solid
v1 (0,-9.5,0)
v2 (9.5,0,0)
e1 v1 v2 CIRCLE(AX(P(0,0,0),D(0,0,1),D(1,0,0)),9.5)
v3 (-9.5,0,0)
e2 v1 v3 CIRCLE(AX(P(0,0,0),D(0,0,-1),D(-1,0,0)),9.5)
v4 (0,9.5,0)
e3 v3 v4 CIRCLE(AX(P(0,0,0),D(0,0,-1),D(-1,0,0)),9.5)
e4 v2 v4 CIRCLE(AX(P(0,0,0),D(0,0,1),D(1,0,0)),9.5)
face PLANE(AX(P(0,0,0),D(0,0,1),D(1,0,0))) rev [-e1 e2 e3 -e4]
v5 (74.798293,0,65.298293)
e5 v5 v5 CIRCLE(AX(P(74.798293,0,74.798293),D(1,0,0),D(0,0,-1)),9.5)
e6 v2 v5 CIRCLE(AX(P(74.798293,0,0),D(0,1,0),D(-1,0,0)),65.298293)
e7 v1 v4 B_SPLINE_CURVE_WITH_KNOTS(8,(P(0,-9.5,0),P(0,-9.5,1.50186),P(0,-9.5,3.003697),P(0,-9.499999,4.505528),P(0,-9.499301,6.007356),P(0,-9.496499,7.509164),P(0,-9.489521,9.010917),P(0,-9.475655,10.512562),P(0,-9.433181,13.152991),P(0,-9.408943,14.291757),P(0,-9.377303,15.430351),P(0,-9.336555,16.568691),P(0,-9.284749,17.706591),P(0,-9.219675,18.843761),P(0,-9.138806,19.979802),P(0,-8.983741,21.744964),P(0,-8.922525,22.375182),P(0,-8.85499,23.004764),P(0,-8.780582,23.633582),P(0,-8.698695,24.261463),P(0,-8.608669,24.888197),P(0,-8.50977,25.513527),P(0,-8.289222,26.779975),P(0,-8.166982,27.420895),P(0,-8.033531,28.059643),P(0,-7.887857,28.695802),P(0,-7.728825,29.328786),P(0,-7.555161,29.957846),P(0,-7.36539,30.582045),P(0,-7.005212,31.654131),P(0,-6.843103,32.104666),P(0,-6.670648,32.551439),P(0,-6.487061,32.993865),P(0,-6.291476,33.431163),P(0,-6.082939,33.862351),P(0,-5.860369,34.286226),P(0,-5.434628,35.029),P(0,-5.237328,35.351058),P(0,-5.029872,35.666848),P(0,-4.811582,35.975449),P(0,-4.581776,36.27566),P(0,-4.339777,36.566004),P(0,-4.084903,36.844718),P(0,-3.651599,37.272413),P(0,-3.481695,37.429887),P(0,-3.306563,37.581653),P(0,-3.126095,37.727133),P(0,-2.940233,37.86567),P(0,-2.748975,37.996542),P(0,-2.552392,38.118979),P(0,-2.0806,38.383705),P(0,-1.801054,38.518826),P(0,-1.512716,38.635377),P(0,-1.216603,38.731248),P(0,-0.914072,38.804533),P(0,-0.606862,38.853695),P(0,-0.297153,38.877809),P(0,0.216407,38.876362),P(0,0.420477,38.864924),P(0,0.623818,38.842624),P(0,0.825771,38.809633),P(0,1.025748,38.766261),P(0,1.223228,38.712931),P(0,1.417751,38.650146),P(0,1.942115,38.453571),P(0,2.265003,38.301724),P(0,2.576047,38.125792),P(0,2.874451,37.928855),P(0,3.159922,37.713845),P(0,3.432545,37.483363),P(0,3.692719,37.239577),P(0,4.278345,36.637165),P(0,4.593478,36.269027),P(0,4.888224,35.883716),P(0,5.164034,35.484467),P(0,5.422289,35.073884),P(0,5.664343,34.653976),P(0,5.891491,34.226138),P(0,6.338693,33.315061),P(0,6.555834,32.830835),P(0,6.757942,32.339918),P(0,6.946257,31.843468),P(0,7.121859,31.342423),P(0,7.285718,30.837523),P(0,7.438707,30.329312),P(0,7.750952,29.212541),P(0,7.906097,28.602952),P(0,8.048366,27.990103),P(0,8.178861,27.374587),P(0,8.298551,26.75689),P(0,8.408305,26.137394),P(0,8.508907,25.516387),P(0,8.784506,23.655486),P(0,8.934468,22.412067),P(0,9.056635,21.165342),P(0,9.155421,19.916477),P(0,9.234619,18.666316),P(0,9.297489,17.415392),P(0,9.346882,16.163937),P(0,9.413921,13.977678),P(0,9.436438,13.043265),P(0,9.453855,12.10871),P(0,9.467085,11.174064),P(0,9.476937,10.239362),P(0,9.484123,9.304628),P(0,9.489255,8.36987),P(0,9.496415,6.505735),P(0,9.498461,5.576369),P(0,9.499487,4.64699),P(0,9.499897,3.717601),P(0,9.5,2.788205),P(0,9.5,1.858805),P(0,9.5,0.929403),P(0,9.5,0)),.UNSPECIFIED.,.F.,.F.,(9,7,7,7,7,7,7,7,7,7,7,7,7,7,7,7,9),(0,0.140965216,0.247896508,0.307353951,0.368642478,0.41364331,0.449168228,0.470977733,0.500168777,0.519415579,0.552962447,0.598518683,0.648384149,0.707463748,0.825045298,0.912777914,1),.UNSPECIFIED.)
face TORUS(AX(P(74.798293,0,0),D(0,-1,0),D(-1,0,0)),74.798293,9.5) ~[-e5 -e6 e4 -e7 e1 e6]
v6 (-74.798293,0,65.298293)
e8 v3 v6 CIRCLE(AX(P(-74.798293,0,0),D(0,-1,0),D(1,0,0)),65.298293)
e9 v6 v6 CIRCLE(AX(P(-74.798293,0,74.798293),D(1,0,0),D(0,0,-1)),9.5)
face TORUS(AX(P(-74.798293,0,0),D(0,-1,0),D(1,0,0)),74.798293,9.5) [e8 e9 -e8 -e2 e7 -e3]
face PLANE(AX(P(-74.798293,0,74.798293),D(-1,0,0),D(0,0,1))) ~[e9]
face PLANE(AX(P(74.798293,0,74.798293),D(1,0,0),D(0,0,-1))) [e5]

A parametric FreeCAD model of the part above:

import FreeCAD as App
import Part
import Sketcher

V = App.Vector
Q = App.Units.Quantity


def add_polygon(sketch, points):
    """Adds a closed chain of lines whose ends are joined by coincident constraints."""
    first, n = sketch.GeometryCount, len(points)
    for a, b in zip(points, points[1:] + points[:1]):
        sketch.addGeometry(Part.LineSegment(App.Vector(*a, 0), App.Vector(*b, 0)), False)
    for i in range(n):
        sketch.addConstraint(Sketcher.Constraint("Coincident", first + i, 2, first + (i + 1) % n, 1))

doc = App.newDocument("Part")
body = doc.addObject("PartDesign::Body", "Body")

sketch1 = body.newObject("Sketcher::SketchObject", "Sketch")
sketch1.AttachmentSupport = (doc.getObject("XY_Plane"), [""])
sketch1.MapMode = "FlatFace"
sketch1.addGeometry(Part.Circle(V(0, 0, 0), V(0, 0, 1), 10), False)
sketch1.addGeometry(Part.LineSegment(V(75, 0, 0), V(75, 10, 0)), True)
sketch1.addConstraint(Sketcher.Constraint("Vertical", 1))
sketch1.addConstraint(Sketcher.Constraint("Coincident", 0, 3, -1, 1))
sketch1.addConstraint(Sketcher.Constraint("PointOnObject", 1, 1, -1))
sketch1.addConstraint(Sketcher.Constraint("Diameter", 0, Q("19 mm")))
sketch1.addConstraint(Sketcher.Constraint("DistanceY", 1, 1, 1, 2, Q("10 mm")))
sketch1.addConstraint(Sketcher.Constraint("DistanceX", -1, 1, 1, 1, Q("74.798293 mm")))
revolution = body.newObject("PartDesign::Revolution", "Revolution")
revolution.Profile = sketch1
revolution.ReferenceAxis = (sketch1, ["Axis0"])
revolution.Angle = 90

sketch2 = body.newObject("Sketcher::SketchObject", "Sketch001")
sketch2.AttachmentSupport = (doc.getObject("YZ_Plane"), [""])
sketch2.MapMode = "FlatFace"
add_polygon(sketch2, [(-75, 67), (-75, -61), (71, -61), (71, 67)])
sketch2.addConstraint(Sketcher.Constraint("Vertical", 0))
sketch2.addConstraint(Sketcher.Constraint("Horizontal", 1))
sketch2.addConstraint(Sketcher.Constraint("Vertical", 2))
sketch2.addConstraint(Sketcher.Constraint("Horizontal", 3))
sketch2.addConstraint(Sketcher.Constraint("DistanceY", 0, 2, 0, 1, Q("128.937841 mm")))
sketch2.addConstraint(Sketcher.Constraint("DistanceX", 1, 1, 1, 2, Q("145.696804 mm")))
sketch2.addConstraint(Sketcher.Constraint("DistanceX", 0, 2, -1, 1, Q("74.73924 mm")))
sketch2.addConstraint(Sketcher.Constraint("DistanceY", 0, 2, -1, 1, Q("61.45601 mm")))
pocket1 = body.newObject("PartDesign::Pocket", "Pocket")
pocket1.Profile = sketch2
pocket1.Length = 25
body2 = doc.addObject("PartDesign::Body", "Body001")
doc.recompute()

body2.BaseFeature = body
doc.recompute()

mirroring = doc.addObject("Part::Mirroring", "Mirroring")
mirroring.Source = body
mirroring.Base = V(0, 0, 0)
mirroring.Normal = V(1, 0, 0)
body3 = doc.addObject("PartDesign::Body", "Body002")
body3.BaseFeature = mirroring
boolean = body2.newObject("PartDesign::Boolean", "Boolean")
boolean.Type = "Fuse"
boolean.addObjects([body3])
doc.recompute()
mirroring.Visibility = False

doc.recompute()
